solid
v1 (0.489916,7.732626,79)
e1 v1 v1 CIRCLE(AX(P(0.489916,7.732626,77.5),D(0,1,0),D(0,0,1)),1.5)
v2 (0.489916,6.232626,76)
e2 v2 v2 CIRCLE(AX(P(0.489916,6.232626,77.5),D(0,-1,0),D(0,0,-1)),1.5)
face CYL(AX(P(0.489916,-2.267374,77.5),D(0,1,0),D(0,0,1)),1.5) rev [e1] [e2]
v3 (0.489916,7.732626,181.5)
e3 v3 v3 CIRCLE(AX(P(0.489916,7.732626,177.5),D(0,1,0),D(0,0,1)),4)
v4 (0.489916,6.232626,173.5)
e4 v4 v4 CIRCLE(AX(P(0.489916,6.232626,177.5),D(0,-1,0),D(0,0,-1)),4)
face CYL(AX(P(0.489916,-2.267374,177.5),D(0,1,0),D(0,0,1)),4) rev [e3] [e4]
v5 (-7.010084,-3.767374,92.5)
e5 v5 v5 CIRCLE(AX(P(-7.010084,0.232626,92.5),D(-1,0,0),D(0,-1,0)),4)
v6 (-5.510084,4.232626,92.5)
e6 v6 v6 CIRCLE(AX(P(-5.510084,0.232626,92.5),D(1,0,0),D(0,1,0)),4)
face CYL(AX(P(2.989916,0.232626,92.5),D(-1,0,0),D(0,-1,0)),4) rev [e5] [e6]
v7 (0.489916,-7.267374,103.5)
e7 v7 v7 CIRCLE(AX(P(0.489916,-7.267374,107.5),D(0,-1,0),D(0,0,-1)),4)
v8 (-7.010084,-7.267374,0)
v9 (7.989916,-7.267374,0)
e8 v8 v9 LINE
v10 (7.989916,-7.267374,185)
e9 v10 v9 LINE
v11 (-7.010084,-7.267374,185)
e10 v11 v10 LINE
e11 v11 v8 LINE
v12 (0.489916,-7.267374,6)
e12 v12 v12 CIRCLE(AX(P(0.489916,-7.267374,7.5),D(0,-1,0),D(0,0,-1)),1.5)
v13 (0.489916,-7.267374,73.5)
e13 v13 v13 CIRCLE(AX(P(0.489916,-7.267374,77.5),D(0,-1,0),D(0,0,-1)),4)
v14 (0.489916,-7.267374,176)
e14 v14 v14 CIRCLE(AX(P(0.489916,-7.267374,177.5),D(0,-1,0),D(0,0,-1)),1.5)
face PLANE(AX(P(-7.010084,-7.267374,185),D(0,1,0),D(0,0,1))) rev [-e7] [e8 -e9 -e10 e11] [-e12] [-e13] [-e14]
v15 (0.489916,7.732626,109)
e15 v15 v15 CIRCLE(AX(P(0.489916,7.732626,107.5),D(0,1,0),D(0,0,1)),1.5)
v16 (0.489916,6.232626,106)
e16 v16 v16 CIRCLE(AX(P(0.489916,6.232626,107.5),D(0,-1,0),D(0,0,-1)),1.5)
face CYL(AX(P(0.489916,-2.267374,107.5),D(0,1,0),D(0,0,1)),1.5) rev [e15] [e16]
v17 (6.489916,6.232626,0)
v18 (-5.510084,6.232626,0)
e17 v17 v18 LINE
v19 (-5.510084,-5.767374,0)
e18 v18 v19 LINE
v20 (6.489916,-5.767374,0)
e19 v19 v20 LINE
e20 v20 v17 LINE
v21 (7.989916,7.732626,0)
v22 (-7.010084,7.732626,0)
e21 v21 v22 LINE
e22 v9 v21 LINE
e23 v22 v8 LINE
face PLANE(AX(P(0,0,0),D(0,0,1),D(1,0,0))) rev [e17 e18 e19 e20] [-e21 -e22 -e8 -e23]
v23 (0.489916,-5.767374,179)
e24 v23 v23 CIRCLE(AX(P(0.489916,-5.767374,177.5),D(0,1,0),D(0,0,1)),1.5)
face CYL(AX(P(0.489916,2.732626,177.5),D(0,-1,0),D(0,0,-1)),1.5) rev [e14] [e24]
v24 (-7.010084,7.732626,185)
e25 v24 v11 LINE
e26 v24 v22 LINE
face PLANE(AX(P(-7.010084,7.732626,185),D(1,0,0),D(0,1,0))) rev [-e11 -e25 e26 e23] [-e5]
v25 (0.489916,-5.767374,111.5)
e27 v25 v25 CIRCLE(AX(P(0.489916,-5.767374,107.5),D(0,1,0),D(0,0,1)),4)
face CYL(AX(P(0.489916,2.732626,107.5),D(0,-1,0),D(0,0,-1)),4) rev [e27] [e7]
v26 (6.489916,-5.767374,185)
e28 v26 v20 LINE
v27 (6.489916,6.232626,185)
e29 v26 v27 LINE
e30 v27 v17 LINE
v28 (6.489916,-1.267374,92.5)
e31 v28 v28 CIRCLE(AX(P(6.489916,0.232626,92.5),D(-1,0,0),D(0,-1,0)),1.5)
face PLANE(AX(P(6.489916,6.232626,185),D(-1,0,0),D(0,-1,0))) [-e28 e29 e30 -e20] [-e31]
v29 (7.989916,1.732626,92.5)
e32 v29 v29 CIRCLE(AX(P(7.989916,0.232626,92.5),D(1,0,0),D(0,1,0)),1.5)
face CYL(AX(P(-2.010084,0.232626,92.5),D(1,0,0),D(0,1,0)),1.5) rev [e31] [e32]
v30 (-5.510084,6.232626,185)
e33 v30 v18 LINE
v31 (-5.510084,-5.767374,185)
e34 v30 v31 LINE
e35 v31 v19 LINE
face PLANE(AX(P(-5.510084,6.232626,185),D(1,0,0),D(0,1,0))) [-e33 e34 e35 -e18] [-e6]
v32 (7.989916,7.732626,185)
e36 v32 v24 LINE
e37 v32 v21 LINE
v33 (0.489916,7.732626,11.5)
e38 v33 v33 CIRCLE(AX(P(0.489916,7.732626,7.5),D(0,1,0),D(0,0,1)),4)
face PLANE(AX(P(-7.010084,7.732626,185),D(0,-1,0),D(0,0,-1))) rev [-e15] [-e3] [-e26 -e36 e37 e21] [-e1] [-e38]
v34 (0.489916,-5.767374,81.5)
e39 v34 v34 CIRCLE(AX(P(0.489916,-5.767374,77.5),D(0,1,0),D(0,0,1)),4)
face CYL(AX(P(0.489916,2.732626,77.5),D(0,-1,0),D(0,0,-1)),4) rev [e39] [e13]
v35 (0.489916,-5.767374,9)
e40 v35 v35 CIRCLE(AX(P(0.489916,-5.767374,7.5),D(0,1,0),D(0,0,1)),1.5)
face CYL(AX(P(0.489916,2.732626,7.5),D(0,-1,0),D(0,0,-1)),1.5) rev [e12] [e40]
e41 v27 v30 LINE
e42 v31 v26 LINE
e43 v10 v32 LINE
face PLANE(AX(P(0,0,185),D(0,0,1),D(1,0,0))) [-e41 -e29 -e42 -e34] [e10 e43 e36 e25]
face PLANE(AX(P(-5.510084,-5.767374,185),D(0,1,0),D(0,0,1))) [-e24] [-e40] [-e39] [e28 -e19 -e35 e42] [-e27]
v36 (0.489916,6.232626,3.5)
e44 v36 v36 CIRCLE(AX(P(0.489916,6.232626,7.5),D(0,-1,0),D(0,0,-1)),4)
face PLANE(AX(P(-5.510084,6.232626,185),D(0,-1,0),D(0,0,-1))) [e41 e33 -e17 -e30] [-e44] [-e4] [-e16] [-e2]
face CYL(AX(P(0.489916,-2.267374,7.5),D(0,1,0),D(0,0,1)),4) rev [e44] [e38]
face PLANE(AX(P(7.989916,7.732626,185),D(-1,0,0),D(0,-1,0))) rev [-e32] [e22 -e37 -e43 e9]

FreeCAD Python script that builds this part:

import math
import FreeCAD as App
import Part
import Sketcher

V = App.Vector


def add_polygon(sketch, points):
    """Adds a closed chain of lines whose ends are joined by coincident constraints."""
    first, n = sketch.GeometryCount, len(points)
    for a, b in zip(points, points[1:] + points[:1]):
        sketch.addGeometry(Part.LineSegment(App.Vector(*a, 0), App.Vector(*b, 0)), False)
    for i in range(n):
        sketch.addConstraint(Sketcher.Constraint("Coincident", first + i, 2, first + (i + 1) % n, 1))

doc = App.newDocument("Part")
body = doc.addObject("PartDesign::Body", "Body")

sketch1 = body.newObject("Sketcher::SketchObject", "Sketch")
sketch1.AttachmentSupport = (doc.getObject("XY_Plane"), [""])
sketch1.MapMode = "FlatFace"
add_polygon(sketch1, [(-7, 8), (-7, -7), (8, -7), (8, 8)])
add_polygon(sketch1, [(6, -6), (-6, -6), (-6, 6), (6, 6)])
sketch1.addConstraint(Sketcher.Constraint("Vertical", 0))
sketch1.addConstraint(Sketcher.Constraint("Horizontal", 1))
sketch1.addConstraint(Sketcher.Constraint("Vertical", 2))
sketch1.addConstraint(Sketcher.Constraint("Horizontal", 3))
sketch1.addConstraint(Sketcher.Constraint("Horizontal", 4))
sketch1.addConstraint(Sketcher.Constraint("Vertical", 5))
sketch1.addConstraint(Sketcher.Constraint("Horizontal", 6))
sketch1.addConstraint(Sketcher.Constraint("Vertical", 7))
sketch1.addConstraint(Sketcher.Constraint("Equal", 3, 0))
sketch1.addConstraint(Sketcher.Constraint("Equal", 6, 5))
sketch1.addConstraint(Sketcher.Constraint("DistanceX", 1, 1, 1, 2, 15.0))
sketch1.addConstraint(Sketcher.Constraint("DistanceX", 4, 2, 4, 1, 12.0))
sketch1.addConstraint(Sketcher.Constraint("DistanceX", 0, 2, 4, 2, 1.5))
sketch1.addConstraint(Sketcher.Constraint("DistanceY", 0, 2, 4, 2, 1.5))
sketch1.addConstraint(Sketcher.Constraint("DistanceX", 0, 2, -1, 1, 7.010084))
sketch1.addConstraint(Sketcher.Constraint("DistanceY", 0, 2, -1, 1, 7.267374))
pad1 = body.newObject("PartDesign::Pad", "Pad")
pad1.Profile = sketch1
pad1.Length = 185

sketch2 = body.newObject("Sketcher::SketchObject", "Sketch001")
sketch2.AttachmentSupport = (doc.getObject("XZ_Plane"), [""])
sketch2.MapMode = "FlatFace"
sketch2.AttachmentOffset = App.Placement(V(0, 0, -7.732626), App.Rotation())
sketch2.addGeometry(Part.Circle(V(0.5, 7.5, 0), V(0, 0, 1), 4), False)
sketch2.addConstraint(Sketcher.Constraint("Diameter", 0, 8.0))
sketch2.addConstraint(Sketcher.Constraint("DistanceY", -1, 1, 0, 3, 7.5))
sketch2.addConstraint(Sketcher.Constraint("DistanceX", -1, 1, 0, 3, 0.489916))
pocket1 = body.newObject("PartDesign::Pocket", "Pocket")
pocket1.Profile = sketch2
pocket1.Length = 10
pocket1.Reversed = True

sketch3 = body.newObject("Sketcher::SketchObject", "Sketch002")
sketch3.AttachmentSupport = (doc.getObject("XZ_Plane"), [""])
sketch3.MapMode = "FlatFace"
sketch3.AttachmentOffset = App.Placement(V(0, 0, -7.732626), App.Rotation())
sketch3.addGeometry(Part.Circle(V(0.5, 177.5, 0), V(0, 0, 1), 4), False)
sketch3.addConstraint(Sketcher.Constraint("Diameter", 0, 8.0))
sketch3.addConstraint(Sketcher.Constraint("DistanceY", -1, 1, 0, 3, 177.5))
sketch3.addConstraint(Sketcher.Constraint("DistanceX", -1, 1, 0, 3, 0.489916))
pocket2 = body.newObject("PartDesign::Pocket", "Pocket001")
pocket2.Profile = sketch3
pocket2.Length = 10
pocket2.Reversed = True

sketch4 = body.newObject("Sketcher::SketchObject", "Sketch003")
sketch4.AttachmentSupport = (doc.getObject("XZ_Plane"), [""])
sketch4.MapMode = "FlatFace"
sketch4.AttachmentOffset = App.Placement(V(0, 0, 7.267374), App.Rotation())
sketch4.addGeometry(Part.Circle(V(0.5, 7.5, 0), V(0, 0, 1), 1.5), False)
sketch4.addConstraint(Sketcher.Constraint("Diameter", 0, 3.0))
sketch4.addConstraint(Sketcher.Constraint("DistanceY", -1, 1, 0, 3, 7.5))
sketch4.addConstraint(Sketcher.Constraint("DistanceX", -1, 1, 0, 3, 0.489916))
pocket3 = body.newObject("PartDesign::Pocket", "Pocket002")
pocket3.Profile = sketch4
pocket3.Length = 10

sketch5 = body.newObject("Sketcher::SketchObject", "Sketch004")
sketch5.AttachmentSupport = (doc.getObject("XZ_Plane"), [""])
sketch5.MapMode = "FlatFace"
sketch5.AttachmentOffset = App.Placement(V(0, 0, 7.267374), App.Rotation())
sketch5.addGeometry(Part.Circle(V(0.5, 177.5, 0), V(0, 0, 1), 1.5), False)
sketch5.addConstraint(Sketcher.Constraint("Diameter", 0, 3.0))
sketch5.addConstraint(Sketcher.Constraint("DistanceY", -1, 1, 0, 3, 177.5))
sketch5.addConstraint(Sketcher.Constraint("DistanceX", -1, 1, 0, 3, 0.489916))
pocket4 = body.newObject("PartDesign::Pocket", "Pocket003")
pocket4.Profile = sketch5
pocket4.Length = 10

sketch6 = body.newObject("Sketcher::SketchObject", "Sketch005")
sketch6.AttachmentSupport = (doc.getObject("XZ_Plane"), [""])
sketch6.MapMode = "FlatFace"
sketch6.AttachmentOffset = App.Placement(V(0, 0, -7.732626), App.Rotation())
sketch6.addGeometry(Part.Circle(V(0.5, 77.5, 0), V(0, 0, 1), 1.5), False)
sketch6.addConstraint(Sketcher.Constraint("Diameter", 0, 3.0))
sketch6.addConstraint(Sketcher.Constraint("DistanceY", -1, 1, 0, 3, 77.5))
sketch6.addConstraint(Sketcher.Constraint("DistanceX", -1, 1, 0, 3, 0.489916))
pocket5 = body.newObject("PartDesign::Pocket", "Pocket004")
pocket5.Profile = sketch6
pocket5.Length = 10
pocket5.Reversed = True

sketch7 = body.newObject("Sketcher::SketchObject", "Sketch006")
sketch7.AttachmentSupport = (doc.getObject("XZ_Plane"), [""])
sketch7.MapMode = "FlatFace"
sketch7.AttachmentOffset = App.Placement(V(0, 0, -7.732626), App.Rotation())
sketch7.addGeometry(Part.Circle(V(0.5, 107.5, 0), V(0, 0, 1), 1.5), False)
sketch7.addConstraint(Sketcher.Constraint("Diameter", 0, 3.0))
sketch7.addConstraint(Sketcher.Constraint("DistanceY", -1, 1, 0, 3, 107.5))
sketch7.addConstraint(Sketcher.Constraint("DistanceX", -1, 1, 0, 3, 0.489916))
pocket6 = body.newObject("PartDesign::Pocket", "Pocket005")
pocket6.Profile = sketch7
pocket6.Length = 10
pocket6.Reversed = True

sketch8 = body.newObject("Sketcher::SketchObject", "Sketch007")
sketch8.AttachmentSupport = (doc.getObject("XZ_Plane"), [""])
sketch8.MapMode = "FlatFace"
sketch8.AttachmentOffset = App.Placement(V(0, 0, 7.267374), App.Rotation())
sketch8.addGeometry(Part.ArcOfCircle(Part.Circle(V(0.5, 77.5, 0), V(0, 0, 1), 4), math.radians(0), math.radians(90)), False)
sketch8.addGeometry(Part.ArcOfCircle(Part.Circle(V(0.5, 77.5, 0), V(0, 0, 1), 4), math.radians(90), math.radians(360)), False)
sketch8.addConstraint(Sketcher.Constraint("Tangent", 0, 1, 1, 2))
sketch8.addConstraint(Sketcher.Constraint("Coincident", 1, 1, 0, 2))
sketch8.addConstraint(Sketcher.Constraint("Horizontal", 1, 3, 0, 1))
sketch8.addConstraint(Sketcher.Constraint("Vertical", 0, 3, 1, 1))
sketch8.addConstraint(Sketcher.Constraint("Radius", 0, 4.0))
sketch8.addConstraint(Sketcher.Constraint("DistanceY", -1, 1, 0, 3, 77.5))
sketch8.addConstraint(Sketcher.Constraint("DistanceX", -1, 1, 0, 3, 0.489916))
pocket7 = body.newObject("PartDesign::Pocket", "Pocket006")
pocket7.Profile = sketch8
pocket7.Length = 10

sketch9 = body.newObject("Sketcher::SketchObject", "Sketch008")
sketch9.AttachmentSupport = (doc.getObject("XZ_Plane"), [""])
sketch9.MapMode = "FlatFace"
sketch9.AttachmentOffset = App.Placement(V(0, 0, 7.267374), App.Rotation())
sketch9.addGeometry(Part.Circle(V(0.5, 107.5, 0), V(0, 0, 1), 4), False)
sketch9.addConstraint(Sketcher.Constraint("Diameter", 0, 8.0))
sketch9.addConstraint(Sketcher.Constraint("DistanceY", -1, 1, 0, 3, 107.5))
sketch9.addConstraint(Sketcher.Constraint("DistanceX", -1, 1, 0, 3, 0.489916))
pocket8 = body.newObject("PartDesign::Pocket", "Pocket007")
pocket8.Profile = sketch9
pocket8.Length = 10

sketch10 = body.newObject("Sketcher::SketchObject", "Sketch009")
sketch10.AttachmentSupport = (doc.getObject("YZ_Plane"), [""])
sketch10.MapMode = "FlatFace"
sketch10.AttachmentOffset = App.Placement(V(0, 0, 7.989916), App.Rotation())
sketch10.addGeometry(Part.Circle(V(0.2, 92.5, 0), V(0, 0, 1), 1.5), False)
sketch10.addConstraint(Sketcher.Constraint("Diameter", 0, 3.0))
sketch10.addConstraint(Sketcher.Constraint("DistanceY", -1, 1, 0, 3, 92.5))
sketch10.addConstraint(Sketcher.Constraint("DistanceX", -1, 1, 0, 3, 0.232626))
pocket9 = body.newObject("PartDesign::Pocket", "Pocket008")
pocket9.Profile = sketch10
pocket9.Length = 10

sketch11 = body.newObject("Sketcher::SketchObject", "Sketch010")
sketch11.AttachmentSupport = (doc.getObject("YZ_Plane"), [""])
sketch11.MapMode = "FlatFace"
sketch11.AttachmentOffset = App.Placement(V(0, 0, -7.010084), App.Rotation())
sketch11.addGeometry(Part.Circle(V(0.2, 92.5, 0), V(0, 0, 1), 4), False)
sketch11.addConstraint(Sketcher.Constraint("Diameter", 0, 8.0))
sketch11.addConstraint(Sketcher.Constraint("DistanceY", -1, 1, 0, 3, 92.5))
sketch11.addConstraint(Sketcher.Constraint("DistanceX", -1, 1, 0, 3, 0.232626))
pocket10 = body.newObject("PartDesign::Pocket", "Pocket009")
pocket10.Profile = sketch11
pocket10.Length = 10
pocket10.Reversed = True

doc.recompute()
